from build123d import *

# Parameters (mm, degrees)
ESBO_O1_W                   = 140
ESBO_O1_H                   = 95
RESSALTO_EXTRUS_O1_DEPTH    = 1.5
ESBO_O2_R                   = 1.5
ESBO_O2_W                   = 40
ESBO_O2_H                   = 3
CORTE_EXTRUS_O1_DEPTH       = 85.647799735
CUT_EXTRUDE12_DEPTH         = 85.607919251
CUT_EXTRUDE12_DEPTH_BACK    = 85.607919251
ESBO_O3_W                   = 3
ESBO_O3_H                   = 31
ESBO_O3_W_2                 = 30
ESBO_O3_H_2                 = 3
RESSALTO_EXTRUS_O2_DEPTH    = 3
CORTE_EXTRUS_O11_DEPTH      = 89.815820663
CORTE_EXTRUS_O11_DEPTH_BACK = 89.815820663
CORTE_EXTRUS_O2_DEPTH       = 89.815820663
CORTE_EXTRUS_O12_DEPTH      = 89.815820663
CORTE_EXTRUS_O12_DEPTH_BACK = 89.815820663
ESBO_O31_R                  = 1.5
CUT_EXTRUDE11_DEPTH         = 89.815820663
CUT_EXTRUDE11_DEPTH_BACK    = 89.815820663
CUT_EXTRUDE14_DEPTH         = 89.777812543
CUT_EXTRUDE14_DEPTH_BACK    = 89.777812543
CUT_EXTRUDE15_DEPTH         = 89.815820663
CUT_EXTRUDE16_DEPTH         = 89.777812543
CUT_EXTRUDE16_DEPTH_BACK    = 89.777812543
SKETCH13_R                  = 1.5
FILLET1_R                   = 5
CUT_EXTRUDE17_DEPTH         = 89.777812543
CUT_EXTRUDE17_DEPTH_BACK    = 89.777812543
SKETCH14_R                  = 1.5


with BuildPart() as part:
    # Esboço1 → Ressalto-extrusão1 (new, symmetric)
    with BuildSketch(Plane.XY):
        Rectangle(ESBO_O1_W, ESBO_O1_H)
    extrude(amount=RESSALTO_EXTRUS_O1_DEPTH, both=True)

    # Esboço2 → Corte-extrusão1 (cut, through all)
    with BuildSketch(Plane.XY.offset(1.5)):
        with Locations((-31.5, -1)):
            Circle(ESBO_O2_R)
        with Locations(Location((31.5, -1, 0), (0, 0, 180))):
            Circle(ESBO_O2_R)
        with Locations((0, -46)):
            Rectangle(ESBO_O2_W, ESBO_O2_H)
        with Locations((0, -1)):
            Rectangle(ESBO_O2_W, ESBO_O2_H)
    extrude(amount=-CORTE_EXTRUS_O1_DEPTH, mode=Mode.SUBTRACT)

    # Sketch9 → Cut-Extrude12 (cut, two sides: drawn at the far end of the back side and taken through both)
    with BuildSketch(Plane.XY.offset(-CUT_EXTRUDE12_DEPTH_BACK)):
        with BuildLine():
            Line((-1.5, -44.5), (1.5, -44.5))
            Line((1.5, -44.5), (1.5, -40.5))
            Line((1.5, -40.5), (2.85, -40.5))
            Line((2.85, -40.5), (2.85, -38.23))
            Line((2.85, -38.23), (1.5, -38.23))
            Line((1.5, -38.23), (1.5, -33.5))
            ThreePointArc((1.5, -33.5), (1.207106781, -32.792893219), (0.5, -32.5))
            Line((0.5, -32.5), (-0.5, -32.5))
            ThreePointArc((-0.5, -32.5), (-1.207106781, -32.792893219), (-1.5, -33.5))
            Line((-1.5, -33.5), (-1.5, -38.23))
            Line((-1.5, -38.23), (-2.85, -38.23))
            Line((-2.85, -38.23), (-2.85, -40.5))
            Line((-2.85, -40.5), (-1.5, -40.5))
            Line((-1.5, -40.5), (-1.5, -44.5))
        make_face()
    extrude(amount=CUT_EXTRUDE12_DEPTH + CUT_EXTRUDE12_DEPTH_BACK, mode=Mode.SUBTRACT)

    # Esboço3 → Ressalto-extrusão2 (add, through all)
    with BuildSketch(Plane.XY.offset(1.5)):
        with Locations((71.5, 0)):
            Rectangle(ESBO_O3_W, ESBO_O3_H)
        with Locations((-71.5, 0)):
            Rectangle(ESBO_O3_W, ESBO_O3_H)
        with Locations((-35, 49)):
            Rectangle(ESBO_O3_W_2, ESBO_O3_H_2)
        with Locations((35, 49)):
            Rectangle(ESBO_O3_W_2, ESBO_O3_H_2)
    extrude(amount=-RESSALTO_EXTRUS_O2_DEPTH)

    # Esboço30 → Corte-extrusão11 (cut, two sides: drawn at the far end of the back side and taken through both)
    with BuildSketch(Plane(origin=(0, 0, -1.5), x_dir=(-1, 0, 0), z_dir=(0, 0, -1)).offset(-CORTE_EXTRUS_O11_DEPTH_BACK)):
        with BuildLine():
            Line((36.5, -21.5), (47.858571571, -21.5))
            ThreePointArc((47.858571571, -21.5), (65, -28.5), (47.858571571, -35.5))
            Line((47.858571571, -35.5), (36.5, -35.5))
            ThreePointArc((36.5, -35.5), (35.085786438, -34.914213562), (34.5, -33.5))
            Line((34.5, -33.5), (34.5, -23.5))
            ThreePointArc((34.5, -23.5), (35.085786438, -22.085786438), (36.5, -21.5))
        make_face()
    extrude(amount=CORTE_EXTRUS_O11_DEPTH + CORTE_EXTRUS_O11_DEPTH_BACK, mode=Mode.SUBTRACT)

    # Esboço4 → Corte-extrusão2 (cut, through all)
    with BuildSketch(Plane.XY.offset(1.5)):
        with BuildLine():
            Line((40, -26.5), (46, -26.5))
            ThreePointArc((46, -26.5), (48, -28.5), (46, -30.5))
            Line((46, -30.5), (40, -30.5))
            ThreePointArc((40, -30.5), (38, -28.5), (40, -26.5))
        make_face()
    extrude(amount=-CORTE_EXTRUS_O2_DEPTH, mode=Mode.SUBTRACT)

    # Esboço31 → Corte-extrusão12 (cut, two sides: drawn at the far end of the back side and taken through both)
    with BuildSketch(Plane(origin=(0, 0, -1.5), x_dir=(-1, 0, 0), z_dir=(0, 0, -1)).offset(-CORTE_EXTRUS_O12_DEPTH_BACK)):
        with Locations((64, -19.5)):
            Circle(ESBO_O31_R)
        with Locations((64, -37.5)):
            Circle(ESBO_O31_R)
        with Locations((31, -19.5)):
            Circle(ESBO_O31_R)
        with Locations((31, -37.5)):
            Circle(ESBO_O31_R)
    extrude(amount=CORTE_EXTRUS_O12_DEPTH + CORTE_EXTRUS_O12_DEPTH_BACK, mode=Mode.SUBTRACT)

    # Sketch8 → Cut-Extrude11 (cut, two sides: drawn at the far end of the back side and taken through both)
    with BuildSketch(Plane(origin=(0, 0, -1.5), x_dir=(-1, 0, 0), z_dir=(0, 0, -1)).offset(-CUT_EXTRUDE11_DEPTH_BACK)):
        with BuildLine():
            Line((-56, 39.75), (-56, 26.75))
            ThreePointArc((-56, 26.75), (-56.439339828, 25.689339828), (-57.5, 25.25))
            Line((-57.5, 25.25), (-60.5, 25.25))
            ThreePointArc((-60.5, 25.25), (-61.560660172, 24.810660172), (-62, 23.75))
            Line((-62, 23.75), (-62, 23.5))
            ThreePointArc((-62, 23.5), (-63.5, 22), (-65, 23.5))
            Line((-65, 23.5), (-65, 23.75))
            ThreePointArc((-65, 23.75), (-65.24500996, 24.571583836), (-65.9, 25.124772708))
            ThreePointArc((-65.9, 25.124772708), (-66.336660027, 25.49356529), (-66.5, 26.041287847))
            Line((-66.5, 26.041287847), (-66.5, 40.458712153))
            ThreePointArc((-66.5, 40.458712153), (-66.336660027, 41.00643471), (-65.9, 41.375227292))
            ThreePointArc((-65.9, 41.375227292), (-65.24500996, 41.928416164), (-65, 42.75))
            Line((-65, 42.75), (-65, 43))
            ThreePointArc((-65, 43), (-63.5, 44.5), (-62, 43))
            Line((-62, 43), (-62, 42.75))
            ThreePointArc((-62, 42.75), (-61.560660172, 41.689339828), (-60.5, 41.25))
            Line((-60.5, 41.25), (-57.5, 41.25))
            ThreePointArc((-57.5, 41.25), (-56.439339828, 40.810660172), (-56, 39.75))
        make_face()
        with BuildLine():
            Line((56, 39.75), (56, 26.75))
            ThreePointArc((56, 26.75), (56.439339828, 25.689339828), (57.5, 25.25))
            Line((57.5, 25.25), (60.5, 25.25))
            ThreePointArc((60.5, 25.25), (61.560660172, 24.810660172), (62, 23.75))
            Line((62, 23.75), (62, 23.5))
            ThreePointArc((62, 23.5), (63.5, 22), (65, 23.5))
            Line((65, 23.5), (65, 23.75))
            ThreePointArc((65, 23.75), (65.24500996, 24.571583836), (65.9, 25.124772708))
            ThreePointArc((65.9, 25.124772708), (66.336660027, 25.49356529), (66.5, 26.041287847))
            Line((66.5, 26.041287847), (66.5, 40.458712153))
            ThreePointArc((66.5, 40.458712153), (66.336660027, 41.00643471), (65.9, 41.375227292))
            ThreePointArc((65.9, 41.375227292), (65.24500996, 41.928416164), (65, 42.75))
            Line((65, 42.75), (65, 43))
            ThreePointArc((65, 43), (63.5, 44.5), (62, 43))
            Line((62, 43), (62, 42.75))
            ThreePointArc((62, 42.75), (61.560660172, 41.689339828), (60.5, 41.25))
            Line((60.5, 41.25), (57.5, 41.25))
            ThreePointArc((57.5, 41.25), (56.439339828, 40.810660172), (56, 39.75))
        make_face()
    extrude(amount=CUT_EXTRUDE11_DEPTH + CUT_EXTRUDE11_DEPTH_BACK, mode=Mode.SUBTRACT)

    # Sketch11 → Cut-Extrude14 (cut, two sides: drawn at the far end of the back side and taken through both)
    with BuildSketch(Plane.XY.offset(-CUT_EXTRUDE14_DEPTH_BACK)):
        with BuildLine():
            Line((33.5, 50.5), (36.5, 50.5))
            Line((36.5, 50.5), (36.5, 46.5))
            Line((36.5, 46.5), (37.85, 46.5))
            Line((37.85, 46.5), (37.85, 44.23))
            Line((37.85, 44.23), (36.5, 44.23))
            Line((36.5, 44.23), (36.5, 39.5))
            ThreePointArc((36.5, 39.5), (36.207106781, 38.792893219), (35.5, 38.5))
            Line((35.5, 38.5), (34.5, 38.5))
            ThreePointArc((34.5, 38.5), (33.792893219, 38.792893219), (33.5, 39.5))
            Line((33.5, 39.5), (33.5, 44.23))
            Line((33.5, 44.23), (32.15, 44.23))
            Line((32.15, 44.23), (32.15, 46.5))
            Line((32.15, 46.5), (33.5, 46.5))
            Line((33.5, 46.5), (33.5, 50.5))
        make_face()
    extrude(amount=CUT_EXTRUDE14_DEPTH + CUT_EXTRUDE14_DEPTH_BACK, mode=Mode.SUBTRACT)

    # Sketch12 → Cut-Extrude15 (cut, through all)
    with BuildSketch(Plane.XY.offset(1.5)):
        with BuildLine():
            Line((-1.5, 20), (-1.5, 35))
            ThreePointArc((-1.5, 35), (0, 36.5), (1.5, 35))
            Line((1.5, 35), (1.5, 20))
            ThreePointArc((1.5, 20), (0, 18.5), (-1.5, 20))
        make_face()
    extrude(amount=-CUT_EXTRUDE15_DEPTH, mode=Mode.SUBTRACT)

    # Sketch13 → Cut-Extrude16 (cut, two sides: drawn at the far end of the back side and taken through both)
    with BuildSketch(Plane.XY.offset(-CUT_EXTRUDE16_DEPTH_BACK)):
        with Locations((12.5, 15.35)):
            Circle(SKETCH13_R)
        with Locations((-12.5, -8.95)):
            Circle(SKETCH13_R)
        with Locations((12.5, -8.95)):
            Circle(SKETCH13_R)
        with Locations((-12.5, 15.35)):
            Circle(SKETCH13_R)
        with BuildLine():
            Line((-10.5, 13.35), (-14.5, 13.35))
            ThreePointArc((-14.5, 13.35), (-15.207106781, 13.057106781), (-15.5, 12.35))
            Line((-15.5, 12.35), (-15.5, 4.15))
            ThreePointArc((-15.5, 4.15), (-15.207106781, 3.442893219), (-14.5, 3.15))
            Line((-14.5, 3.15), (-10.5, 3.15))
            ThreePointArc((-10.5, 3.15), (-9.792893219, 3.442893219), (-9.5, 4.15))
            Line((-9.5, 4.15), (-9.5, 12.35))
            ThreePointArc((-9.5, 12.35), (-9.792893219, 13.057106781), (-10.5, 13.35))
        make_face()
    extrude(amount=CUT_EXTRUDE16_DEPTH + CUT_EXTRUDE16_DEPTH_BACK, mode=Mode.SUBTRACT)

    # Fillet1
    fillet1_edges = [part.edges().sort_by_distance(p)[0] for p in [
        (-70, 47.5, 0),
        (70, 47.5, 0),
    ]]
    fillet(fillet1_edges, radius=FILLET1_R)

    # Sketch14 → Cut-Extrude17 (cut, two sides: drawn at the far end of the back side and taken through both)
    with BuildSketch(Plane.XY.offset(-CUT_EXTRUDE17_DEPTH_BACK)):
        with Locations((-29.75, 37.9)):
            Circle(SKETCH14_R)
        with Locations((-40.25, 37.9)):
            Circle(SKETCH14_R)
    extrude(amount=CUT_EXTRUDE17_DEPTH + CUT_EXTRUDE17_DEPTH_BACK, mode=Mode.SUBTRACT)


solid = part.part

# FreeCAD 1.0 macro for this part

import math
import FreeCAD as App
import Part
import Sketcher

V = App.Vector
Q = App.Units.Quantity


def edges_at(feature, points):
    """Names of the edges that pass closest to the given points."""
    edges = feature.Shape.Edges
    near = lambda p: min(range(len(edges)), key=lambda i: edges[i].distToShape(Part.Vertex(*p))[0])
    return sorted({f"Edge{near(p) + 1}" for p in points})


def add_polygon(sketch, points):
    """Adds a closed chain of lines whose ends are joined by coincident constraints."""
    first, n = sketch.GeometryCount, len(points)
    for a, b in zip(points, points[1:] + points[:1]):
        sketch.addGeometry(Part.LineSegment(App.Vector(*a, 0), App.Vector(*b, 0)), False)
    for i in range(n):
        sketch.addConstraint(Sketcher.Constraint("Coincident", first + i, 2, first + (i + 1) % n, 1))

doc = App.newDocument("Part")
body = doc.addObject("PartDesign::Body", "Body")

sketch1 = body.newObject("Sketcher::SketchObject", "Sketch")
sketch1.AttachmentSupport = (doc.getObject("XY_Plane"), [""])
sketch1.MapMode = "FlatFace"
add_polygon(sketch1, [(-70, 48), (-70, -48), (70, -48), (70, 48)])
sketch1.addConstraint(Sketcher.Constraint("Vertical", 0))
sketch1.addConstraint(Sketcher.Constraint("Horizontal", 1))
sketch1.addConstraint(Sketcher.Constraint("Vertical", 2))
sketch1.addConstraint(Sketcher.Constraint("Horizontal", 3))
sketch1.addConstraint(Sketcher.Constraint("Symmetric", 0, 2, 2, 2, -1, 1))
sketch1.addConstraint(Sketcher.Constraint("DistanceX", 1, 1, 1, 2, Q("140 mm")))
sketch1.addConstraint(Sketcher.Constraint("DistanceY", 0, 2, 0, 1, Q("95 mm")))
pad1 = body.newObject("PartDesign::Pad", "Pad")
pad1.Profile = sketch1
pad1.Length = 3
pad1.Midplane = True

sketch2 = body.newObject("Sketcher::SketchObject", "Sketch001")
sketch2.AttachmentSupport = (doc.getObject("XY_Plane"), [""])
sketch2.MapMode = "FlatFace"
sketch2.AttachmentOffset = App.Placement(V(0, 0, 1.5), App.Rotation())
sketch2.addGeometry(Part.Circle(V(-31.5, -1, 0), V(0, 0, 1), 1.5), False)
sketch2.addGeometry(Part.Circle(V(31.5, -1, 0), V(0, 0, 1), 1.5), False)
add_polygon(sketch2, [(-20, -44.5), (-20, -47.5), (20, -47.5), (20, -44.5)])
add_polygon(sketch2, [(-20, 0.5), (-20, -2.5), (20, -2.5), (20, 0.5)])
sketch2.addConstraint(Sketcher.Constraint("Vertical", 2))
sketch2.addConstraint(Sketcher.Constraint("Horizontal", 3))
sketch2.addConstraint(Sketcher.Constraint("Vertical", 4))
sketch2.addConstraint(Sketcher.Constraint("Horizontal", 5))
sketch2.addConstraint(Sketcher.Constraint("Vertical", 6))
sketch2.addConstraint(Sketcher.Constraint("Horizontal", 7))
sketch2.addConstraint(Sketcher.Constraint("Vertical", 8))
sketch2.addConstraint(Sketcher.Constraint("Horizontal", 9))
sketch2.addConstraint(Sketcher.Constraint("Equal", 0, 1))
sketch2.addConstraint(Sketcher.Constraint("Symmetric", 0, 3, 1, 3, -2))
sketch2.addConstraint(Sketcher.Constraint("Vertical", 5, 2, 6, 2))
sketch2.addConstraint(Sketcher.Constraint("Vertical", 4, 2, 7, 2))
sketch2.addConstraint(Sketcher.Constraint("Equal", 4, 6))
sketch2.addConstraint(Sketcher.Constraint("Diameter", 0, Q("3 mm")))
sketch2.addConstraint(Sketcher.Constraint("DistanceX", 3, 1, 3, 2, Q("40 mm")))
sketch2.addConstraint(Sketcher.Constraint("DistanceY", 2, 2, 2, 1, Q("3 mm")))
sketch2.addConstraint(Sketcher.Constraint("DistanceY", 0, 3, -1, 1, Q("1 mm")))
sketch2.addConstraint(Sketcher.Constraint("DistanceX", 2, 2, -1, 1, Q("20 mm")))
sketch2.addConstraint(Sketcher.Constraint("DistanceX", 0, 3, 1, 3, Q("63 mm")))
sketch2.addConstraint(Sketcher.Constraint("DistanceY", 5, 2, 6, 2, Q("42 mm")))
sketch2.addConstraint(Sketcher.Constraint("DistanceY", 2, 2, -1, 1, Q("47.5 mm")))
pocket1 = body.newObject("PartDesign::Pocket", "Pocket")
pocket1.Profile = sketch2
pocket1.Type = "ThroughAll"

sketch3 = body.newObject("Sketcher::SketchObject", "Sketch002")
sketch3.AttachmentSupport = (doc.getObject("XY_Plane"), [""])
sketch3.MapMode = "FlatFace"
sketch3.addGeometry(Part.LineSegment(V(-1.5, -44.5, 0), V(1.5, -44.5, 0)), False)
sketch3.addGeometry(Part.LineSegment(V(1.5, -44.5, 0), V(1.5, -40.5, 0)), False)
sketch3.addGeometry(Part.LineSegment(V(1.5, -40.5, 0), V(2.9, -40.5, 0)), False)
sketch3.addGeometry(Part.LineSegment(V(2.9, -40.5, 0), V(2.9, -38.2, 0)), False)
sketch3.addGeometry(Part.LineSegment(V(2.9, -38.2, 0), V(1.5, -38.2, 0)), False)
sketch3.addGeometry(Part.LineSegment(V(1.5, -38.2, 0), V(1.5, -33.5, 0)), False)
sketch3.addGeometry(Part.ArcOfCircle(Part.Circle(V(0.5, -33.5, 0), V(0, 0, 1), 1), math.radians(0), math.radians(90)), False)
sketch3.addGeometry(Part.LineSegment(V(0.5, -32.5, 0), V(-0.5, -32.5, 0)), False)
sketch3.addGeometry(Part.ArcOfCircle(Part.Circle(V(-0.5, -33.5, 0), V(0, 0, 1), 1), math.radians(90), math.radians(180)), False)
sketch3.addGeometry(Part.LineSegment(V(-1.5, -33.5, 0), V(-1.5, -38.2, 0)), False)
sketch3.addGeometry(Part.LineSegment(V(-1.5, -38.2, 0), V(-2.9, -38.2, 0)), False)
sketch3.addGeometry(Part.LineSegment(V(-2.9, -38.2, 0), V(-2.9, -40.5, 0)), False)
sketch3.addGeometry(Part.LineSegment(V(-2.9, -40.5, 0), V(-1.5, -40.5, 0)), False)
sketch3.addGeometry(Part.LineSegment(V(-1.5, -40.5, 0), V(-1.5, -44.5, 0)), False)
sketch3.addConstraint(Sketcher.Constraint("Coincident", 0, 2, 1, 1))
sketch3.addConstraint(Sketcher.Constraint("Coincident", 1, 2, 2, 1))
sketch3.addConstraint(Sketcher.Constraint("Coincident", 2, 2, 3, 1))
sketch3.addConstraint(Sketcher.Constraint("Coincident", 3, 2, 4, 1))
sketch3.addConstraint(Sketcher.Constraint("Coincident", 4, 2, 5, 1))
sketch3.addConstraint(Sketcher.Constraint("Tangent", 5, 2, 6, 1))
sketch3.addConstraint(Sketcher.Constraint("Tangent", 6, 2, 7, 1))
sketch3.addConstraint(Sketcher.Constraint("Tangent", 7, 2, 8, 1))
sketch3.addConstraint(Sketcher.Constraint("Tangent", 8, 2, 9, 1))
sketch3.addConstraint(Sketcher.Constraint("Coincident", 9, 2, 10, 1))
sketch3.addConstraint(Sketcher.Constraint("Coincident", 10, 2, 11, 1))
sketch3.addConstraint(Sketcher.Constraint("Coincident", 11, 2, 12, 1))
sketch3.addConstraint(Sketcher.Constraint("Coincident", 12, 2, 13, 1))
sketch3.addConstraint(Sketcher.Constraint("Coincident", 13, 2, 0, 1))
sketch3.addConstraint(Sketcher.Constraint("Horizontal", 0))
sketch3.addConstraint(Sketcher.Constraint("Vertical", 1))
sketch3.addConstraint(Sketcher.Constraint("Horizontal", 2))
sketch3.addConstraint(Sketcher.Constraint("Vertical", 3))
sketch3.addConstraint(Sketcher.Constraint("Horizontal", 4))
sketch3.addConstraint(Sketcher.Constraint("Vertical", 5))
sketch3.addConstraint(Sketcher.Constraint("Horizontal", 7))
sketch3.addConstraint(Sketcher.Constraint("Vertical", 9))
sketch3.addConstraint(Sketcher.Constraint("Horizontal", 10))
sketch3.addConstraint(Sketcher.Constraint("Vertical", 11))
sketch3.addConstraint(Sketcher.Constraint("Horizontal", 12))
sketch3.addConstraint(Sketcher.Constraint("Vertical", 13))
sketch3.addConstraint(Sketcher.Constraint("Equal", 6, 8))
sketch3.addConstraint(Sketcher.Constraint("Symmetric", 4, 2, 9, 2, -2))
sketch3.addConstraint(Sketcher.Constraint("Symmetric", 2, 2, 11, 2, -2))
sketch3.addConstraint(Sketcher.Constraint("Vertical", 1, 2, 4, 2))
sketch3.addConstraint(Sketcher.Constraint("Vertical", 9, 2, 12, 2))
sketch3.addConstraint(Sketcher.Constraint("Radius", 6, Q("1 mm")))
sketch3.addConstraint(Sketcher.Constraint("DistanceX", 0, 1, 0, 2, Q("3 mm")))
sketch3.addConstraint(Sketcher.Constraint("DistanceY", 1, 1, 1, 2, Q("4 mm")))
sketch3.addConstraint(Sketcher.Constraint("DistanceY", 0, 2, 6, 3, Q("11 mm")))
sketch3.addConstraint(Sketcher.Constraint("DistanceX", 2, 1, 2, 2, Q("1.35 mm")))
sketch3.addConstraint(Sketcher.Constraint("DistanceY", 3, 1, 3, 2, Q("2.27 mm")))
sketch3.addConstraint(Sketcher.Constraint("DistanceY", 6, 3, -1, 1, Q("33.5 mm")))
pocket2 = body.newObject("PartDesign::Pocket", "Pocket001")
pocket2.Profile = sketch3
pocket2.Type = "ThroughAll"
pocket2.Midplane = True

sketch4 = body.newObject("Sketcher::SketchObject", "Sketch003")
sketch4.AttachmentSupport = (doc.getObject("XY_Plane"), [""])
sketch4.MapMode = "FlatFace"
sketch4.AttachmentOffset = App.Placement(V(0, 0, 1.5), App.Rotation())
add_polygon(sketch4, [(70, 15.5), (70, -15.5), (73, -15.5), (73, 15.5)])
add_polygon(sketch4, [(-73, 15.5), (-73, -15.5), (-70, -15.5), (-70, 15.5)])
add_polygon(sketch4, [(-50, 50.5), (-50, 47.5), (-20, 47.5), (-20, 50.5)])
add_polygon(sketch4, [(20, 50.5), (20, 47.5), (50, 47.5), (50, 50.5)])
sketch4.addConstraint(Sketcher.Constraint("Vertical", 0))
sketch4.addConstraint(Sketcher.Constraint("Horizontal", 1))
sketch4.addConstraint(Sketcher.Constraint("Vertical", 2))
sketch4.addConstraint(Sketcher.Constraint("Horizontal", 3))
sketch4.addConstraint(Sketcher.Constraint("Vertical", 4))
sketch4.addConstraint(Sketcher.Constraint("Horizontal", 5))
sketch4.addConstraint(Sketcher.Constraint("Vertical", 6))
sketch4.addConstraint(Sketcher.Constraint("Horizontal", 7))
sketch4.addConstraint(Sketcher.Constraint("Vertical", 8))
sketch4.addConstraint(Sketcher.Constraint("Horizontal", 9))
sketch4.addConstraint(Sketcher.Constraint("Vertical", 10))
sketch4.addConstraint(Sketcher.Constraint("Horizontal", 11))
sketch4.addConstraint(Sketcher.Constraint("Vertical", 12))
sketch4.addConstraint(Sketcher.Constraint("Horizontal", 13))
sketch4.addConstraint(Sketcher.Constraint("Vertical", 14))
sketch4.addConstraint(Sketcher.Constraint("Horizontal", 15))
sketch4.addConstraint(Sketcher.Constraint("Symmetric", 2, 2, 4, 2, -1, 1))
sketch4.addConstraint(Sketcher.Constraint("Symmetric", 0, 2, 6, 2, -1, 1))
sketch4.addConstraint(Sketcher.Constraint("Symmetric", 9, 2, 12, 2, -2))
sketch4.addConstraint(Sketcher.Constraint("Symmetric", 11, 2, 14, 2, -2))
sketch4.addConstraint(Sketcher.Constraint("Horizontal", 1, 2, 4, 2))
sketch4.addConstraint(Sketcher.Constraint("Equal", 7, 8))
sketch4.addConstraint(Sketcher.Constraint("DistanceX", 1, 1, 1, 2, Q("3 mm")))
sketch4.addConstraint(Sketcher.Constraint("DistanceX", 9, 1, 9, 2, Q("30 mm")))
sketch4.addConstraint(Sketcher.Constraint("DistanceY", 0, 2, 0, 1, Q("31 mm")))
sketch4.addConstraint(Sketcher.Constraint("DistanceX", -1, 1, 0, 2, Q("70 mm")))
sketch4.addConstraint(Sketcher.Constraint("DistanceX", 8, 2, -1, 1, Q("50 mm")))
sketch4.addConstraint(Sketcher.Constraint("DistanceY", 6, 2, 8, 2, Q("32 mm")))
pad2 = body.newObject("PartDesign::Pad", "Pad001")
pad2.Profile = sketch4
pad2.Type = "UpToLast"
pad2.Reversed = True

sketch5 = body.newObject("Sketcher::SketchObject", "Sketch004")
sketch5.AttachmentSupport = (doc.getObject("XY_Plane"), [""])
sketch5.MapMode = "FlatFace"
sketch5.AttachmentOffset = App.Placement(V(0, 0, -1.5), App.Rotation())
sketch5.addGeometry(Part.LineSegment(V(-47.9, -21.5, 0), V(-36.5, -21.5, 0)), False)
sketch5.addGeometry(Part.ArcOfCircle(Part.Circle(V(-36.5, -23.5, 0), V(0, 0, 1), 2), math.radians(0), math.radians(90)), False)
sketch5.addGeometry(Part.LineSegment(V(-34.5, -23.5, 0), V(-34.5, -33.5, 0)), False)
sketch5.addGeometry(Part.ArcOfCircle(Part.Circle(V(-36.5, -33.5, 0), V(0, 0, 1), 2), math.radians(-90), math.radians(0)), False)
sketch5.addGeometry(Part.LineSegment(V(-36.5, -35.5, 0), V(-47.9, -35.5, 0)), False)
sketch5.addGeometry(Part.ArcOfCircle(Part.Circle(V(-55, -28.5, 0), V(0, 0, 1), 10), math.radians(44), math.radians(316)), False)
sketch5.addConstraint(Sketcher.Constraint("Tangent", 0, 2, 1, 2))
sketch5.addConstraint(Sketcher.Constraint("Tangent", 1, 1, 2, 1))
sketch5.addConstraint(Sketcher.Constraint("Tangent", 2, 2, 3, 2))
sketch5.addConstraint(Sketcher.Constraint("Tangent", 3, 1, 4, 1))
sketch5.addConstraint(Sketcher.Constraint("Coincident", 4, 2, 5, 2))
sketch5.addConstraint(Sketcher.Constraint("Coincident", 5, 1, 0, 1))
sketch5.addConstraint(Sketcher.Constraint("Horizontal", 0))
sketch5.addConstraint(Sketcher.Constraint("Vertical", 2))
sketch5.addConstraint(Sketcher.Constraint("Horizontal", 4))
sketch5.addConstraint(Sketcher.Constraint("Equal", 1, 3))
sketch5.addConstraint(Sketcher.Constraint("Vertical", 4, 2, 5, 1))
sketch5.addConstraint(Sketcher.Constraint("Radius", 1, Q("2 mm")))
sketch5.addConstraint(Sketcher.Constraint("Radius", 5, Q("10 mm")))
sketch5.addConstraint(Sketcher.Constraint("DistanceY", 2, 2, 2, 1, Q("10 mm")))
sketch5.addConstraint(Sketcher.Constraint("DistanceX", 5, 3, -1, 1, Q("55 mm")))
sketch5.addConstraint(Sketcher.Constraint("DistanceX", 1, 3, -1, 1, Q("36.5 mm")))
sketch5.addConstraint(Sketcher.Constraint("DistanceY", 1, 3, -1, 1, Q("23.5 mm")))
pocket3 = body.newObject("PartDesign::Pocket", "Pocket002")
pocket3.Profile = sketch5
pocket3.Type = "ThroughAll"
pocket3.Midplane = True

sketch6 = body.newObject("Sketcher::SketchObject", "Sketch005")
sketch6.AttachmentSupport = (doc.getObject("XY_Plane"), [""])
sketch6.MapMode = "FlatFace"
sketch6.AttachmentOffset = App.Placement(V(0, 0, 1.5), App.Rotation())
sketch6.addGeometry(Part.LineSegment(V(46, -26.5, 0), V(40, -26.5, 0)), False)
sketch6.addGeometry(Part.ArcOfCircle(Part.Circle(V(40, -28.5, 0), V(0, 0, 1), 2), math.radians(90), math.radians(270)), False)
sketch6.addGeometry(Part.LineSegment(V(40, -30.5, 0), V(46, -30.5, 0)), False)
sketch6.addGeometry(Part.ArcOfCircle(Part.Circle(V(46, -28.5, 0), V(0, 0, 1), 2), math.radians(-90), math.radians(90)), False)
sketch6.addConstraint(Sketcher.Constraint("Tangent", 0, 2, 1, 1))
sketch6.addConstraint(Sketcher.Constraint("Tangent", 1, 2, 2, 1))
sketch6.addConstraint(Sketcher.Constraint("Tangent", 2, 2, 3, 1))
sketch6.addConstraint(Sketcher.Constraint("Tangent", 3, 2, 0, 1))
sketch6.addConstraint(Sketcher.Constraint("Horizontal", 0))
sketch6.addConstraint(Sketcher.Constraint("Horizontal", 2))
sketch6.addConstraint(Sketcher.Constraint("Radius", 1, Q("2 mm")))
sketch6.addConstraint(Sketcher.Constraint("DistanceX", 0, 2, 0, 1, Q("6 mm")))
sketch6.addConstraint(Sketcher.Constraint("DistanceX", -1, 1, 1, 3, Q("40 mm")))
sketch6.addConstraint(Sketcher.Constraint("DistanceY", 1, 3, -1, 1, Q("28.5 mm")))
pocket4 = body.newObject("PartDesign::Pocket", "Pocket003")
pocket4.Profile = sketch6
pocket4.Type = "ThroughAll"

sketch7 = body.newObject("Sketcher::SketchObject", "Sketch006")
sketch7.AttachmentSupport = (doc.getObject("XY_Plane"), [""])
sketch7.MapMode = "FlatFace"
sketch7.AttachmentOffset = App.Placement(V(0, 0, -1.5), App.Rotation())
sketch7.addGeometry(Part.Circle(V(-64, -19.5, 0), V(0, 0, 1), 1.5), False)
sketch7.addGeometry(Part.Circle(V(-64, -37.5, 0), V(0, 0, 1), 1.5), False)
sketch7.addGeometry(Part.Circle(V(-31, -19.5, 0), V(0, 0, 1), 1.5), False)
sketch7.addGeometry(Part.Circle(V(-31, -37.5, 0), V(0, 0, 1), 1.5), False)
sketch7.addConstraint(Sketcher.Constraint("Equal", 0, 1))
sketch7.addConstraint(Sketcher.Constraint("Equal", 1, 2))
sketch7.addConstraint(Sketcher.Constraint("Equal", 2, 3))
sketch7.addConstraint(Sketcher.Constraint("Horizontal", 0, 3, 2, 3))
sketch7.addConstraint(Sketcher.Constraint("Horizontal", 1, 3, 3, 3))
sketch7.addConstraint(Sketcher.Constraint("Vertical", 0, 3, 1, 3))
sketch7.addConstraint(Sketcher.Constraint("Vertical", 2, 3, 3, 3))
sketch7.addConstraint(Sketcher.Constraint("Diameter", 0, Q("3 mm")))
sketch7.addConstraint(Sketcher.Constraint("DistanceX", 0, 3, -1, 1, Q("64 mm")))
sketch7.addConstraint(Sketcher.Constraint("DistanceX", 2, 3, -1, 1, Q("31 mm")))
sketch7.addConstraint(Sketcher.Constraint("DistanceY", 1, 3, 0, 3, Q("18 mm")))
sketch7.addConstraint(Sketcher.Constraint("DistanceY", 0, 3, -1, 1, Q("19.5 mm")))
pocket5 = body.newObject("PartDesign::Pocket", "Pocket004")
pocket5.Profile = sketch7
pocket5.Type = "ThroughAll"
pocket5.Midplane = True

sketch8 = body.newObject("Sketcher::SketchObject", "Sketch007")
sketch8.AttachmentSupport = (doc.getObject("XY_Plane"), [""])
sketch8.MapMode = "FlatFace"
sketch8.AttachmentOffset = App.Placement(V(0, 0, -1.5), App.Rotation())
sketch8.addGeometry(Part.LineSegment(V(56, 26.75, 0), V(56, 39.75, 0)), False)
sketch8.addGeometry(Part.ArcOfCircle(Part.Circle(V(57.5, 39.75, 0), V(0, 0, 1), 1.5), math.radians(90), math.radians(180)), False)
sketch8.addGeometry(Part.LineSegment(V(57.5, 41.25, 0), V(60.5, 41.25, 0)), False)
sketch8.addGeometry(Part.ArcOfCircle(Part.Circle(V(60.5, 42.75, 0), V(0, 0, 1), 1.5), math.radians(-90), math.radians(0)), False)
sketch8.addGeometry(Part.LineSegment(V(62, 42.75, 0), V(62, 43, 0)), False)
sketch8.addGeometry(Part.ArcOfCircle(Part.Circle(V(63.5, 43, 0), V(0, 0, 1), 1.5), math.radians(0), math.radians(180)), False)
sketch8.addGeometry(Part.LineSegment(V(65, 43, 0), V(65, 42.75, 0)), False)
sketch8.addGeometry(Part.ArcOfCircle(Part.Circle(V(66.5, 42.75, 0), V(0, 0, 1), 1.5), math.radians(180), math.radians(246)), False)
sketch8.addGeometry(Part.ArcOfCircle(Part.Circle(V(65.5, 40.46, 0), V(0, 0, 1), 1), math.radians(0), math.radians(66)), False)
sketch8.addGeometry(Part.LineSegment(V(66.5, 40.46, 0), V(66.5, 26.04, 0)), False)
sketch8.addGeometry(Part.ArcOfCircle(Part.Circle(V(65.5, 26.04, 0), V(0, 0, 1), 1), math.radians(-66), math.radians(0)), False)
sketch8.addGeometry(Part.ArcOfCircle(Part.Circle(V(66.5, 23.75, 0), V(0, 0, 1), 1.5), math.radians(114), math.radians(180)), False)
sketch8.addGeometry(Part.LineSegment(V(65, 23.75, 0), V(65, 23.5, 0)), False)
sketch8.addGeometry(Part.ArcOfCircle(Part.Circle(V(63.5, 23.5, 0), V(0, 0, 1), 1.5), math.radians(180), math.radians(360)), False)
sketch8.addGeometry(Part.LineSegment(V(62, 23.5, 0), V(62, 23.75, 0)), False)
sketch8.addGeometry(Part.ArcOfCircle(Part.Circle(V(60.5, 23.75, 0), V(0, 0, 1), 1.5), math.radians(0), math.radians(90)), False)
sketch8.addGeometry(Part.LineSegment(V(60.5, 25.25, 0), V(57.5, 25.25, 0)), False)
sketch8.addGeometry(Part.ArcOfCircle(Part.Circle(V(57.5, 26.75, 0), V(0, 0, 1), 1.5), math.radians(180), math.radians(270)), False)
sketch8.addGeometry(Part.LineSegment(V(-56, 39.75, 0), V(-56, 26.75, 0)), False)
sketch8.addGeometry(Part.ArcOfCircle(Part.Circle(V(-57.5, 26.75, 0), V(0, 0, 1), 1.5), math.radians(-90), math.radians(0)), False)
sketch8.addGeometry(Part.LineSegment(V(-57.5, 25.25, 0), V(-60.5, 25.25, 0)), False)
sketch8.addGeometry(Part.ArcOfCircle(Part.Circle(V(-60.5, 23.75, 0), V(0, 0, 1), 1.5), math.radians(90), math.radians(180)), False)
sketch8.addGeometry(Part.LineSegment(V(-62, 23.75, 0), V(-62, 23.5, 0)), False)
sketch8.addGeometry(Part.ArcOfCircle(Part.Circle(V(-63.5, 23.5, 0), V(0, 0, 1), 1.5), math.radians(180), math.radians(360)), False)
sketch8.addGeometry(Part.LineSegment(V(-65, 23.5, 0), V(-65, 23.75, 0)), False)
sketch8.addGeometry(Part.ArcOfCircle(Part.Circle(V(-66.5, 23.75, 0), V(0, 0, 1), 1.5), math.radians(0), math.radians(66)), False)
sketch8.addGeometry(Part.ArcOfCircle(Part.Circle(V(-65.5, 26.04, 0), V(0, 0, 1), 1), math.radians(180), math.radians(246)), False)
sketch8.addGeometry(Part.LineSegment(V(-66.5, 26.04, 0), V(-66.5, 40.46, 0)), False)
sketch8.addGeometry(Part.ArcOfCircle(Part.Circle(V(-65.5, 40.46, 0), V(0, 0, 1), 1), math.radians(114), math.radians(180)), False)
sketch8.addGeometry(Part.ArcOfCircle(Part.Circle(V(-66.5, 42.75, 0), V(0, 0, 1), 1.5), math.radians(-66), math.radians(0)), False)
sketch8.addGeometry(Part.LineSegment(V(-65, 42.75, 0), V(-65, 43, 0)), False)
sketch8.addGeometry(Part.ArcOfCircle(Part.Circle(V(-63.5, 43, 0), V(0, 0, 1), 1.5), math.radians(0), math.radians(180)), False)
sketch8.addGeometry(Part.LineSegment(V(-62, 43, 0), V(-62, 42.75, 0)), False)
sketch8.addGeometry(Part.ArcOfCircle(Part.Circle(V(-60.5, 42.75, 0), V(0, 0, 1), 1.5), math.radians(180), math.radians(270)), False)
sketch8.addGeometry(Part.LineSegment(V(-60.5, 41.25, 0), V(-57.5, 41.25, 0)), False)
sketch8.addGeometry(Part.ArcOfCircle(Part.Circle(V(-57.5, 39.75, 0), V(0, 0, 1), 1.5), math.radians(0), math.radians(90)), False)
sketch8.addConstraint(Sketcher.Constraint("Tangent", 0, 2, 1, 2))
sketch8.addConstraint(Sketcher.Constraint("Tangent", 1, 1, 2, 1))
sketch8.addConstraint(Sketcher.Constraint("Tangent", 2, 2, 3, 1))
sketch8.addConstraint(Sketcher.Constraint("Tangent", 3, 2, 4, 1))
sketch8.addConstraint(Sketcher.Constraint("Tangent", 4, 2, 5, 2))
sketch8.addConstraint(Sketcher.Constraint("Tangent", 5, 1, 6, 1))
sketch8.addConstraint(Sketcher.Constraint("Tangent", 6, 2, 7, 1))
sketch8.addConstraint(Sketcher.Constraint("Tangent", 7, 2, 8, 2))
sketch8.addConstraint(Sketcher.Constraint("Tangent", 8, 1, 9, 1))
sketch8.addConstraint(Sketcher.Constraint("Tangent", 9, 2, 10, 2))
sketch8.addConstraint(Sketcher.Constraint("Tangent", 10, 1, 11, 1))
sketch8.addConstraint(Sketcher.Constraint("Tangent", 11, 2, 12, 1))
sketch8.addConstraint(Sketcher.Constraint("Tangent", 12, 2, 13, 2))
sketch8.addConstraint(Sketcher.Constraint("Tangent", 13, 1, 14, 1))
sketch8.addConstraint(Sketcher.Constraint("Tangent", 14, 2, 15, 1))
sketch8.addConstraint(Sketcher.Constraint("Tangent", 15, 2, 16, 1))
sketch8.addConstraint(Sketcher.Constraint("Tangent", 16, 2, 17, 2))
sketch8.addConstraint(Sketcher.Constraint("Tangent", 17, 1, 0, 1))
sketch8.addConstraint(Sketcher.Constraint("Tangent", 18, 2, 19, 2))
sketch8.addConstraint(Sketcher.Constraint("Tangent", 19, 1, 20, 1))
sketch8.addConstraint(Sketcher.Constraint("Tangent", 20, 2, 21, 1))
sketch8.addConstraint(Sketcher.Constraint("Tangent", 21, 2, 22, 1))
sketch8.addConstraint(Sketcher.Constraint("Tangent", 22, 2, 23, 2))
sketch8.addConstraint(Sketcher.Constraint("Tangent", 23, 1, 24, 1))
sketch8.addConstraint(Sketcher.Constraint("Tangent", 24, 2, 25, 1))
sketch8.addConstraint(Sketcher.Constraint("Tangent", 25, 2, 26, 2))
sketch8.addConstraint(Sketcher.Constraint("Tangent", 26, 1, 27, 1))
sketch8.addConstraint(Sketcher.Constraint("Tangent", 27, 2, 28, 2))
sketch8.addConstraint(Sketcher.Constraint("Tangent", 28, 1, 29, 1))
sketch8.addConstraint(Sketcher.Constraint("Tangent", 29, 2, 30, 1))
sketch8.addConstraint(Sketcher.Constraint("Tangent", 30, 2, 31, 2))
sketch8.addConstraint(Sketcher.Constraint("Tangent", 31, 1, 32, 1))
sketch8.addConstraint(Sketcher.Constraint("Tangent", 32, 2, 33, 1))
sketch8.addConstraint(Sketcher.Constraint("Tangent", 33, 2, 34, 1))
sketch8.addConstraint(Sketcher.Constraint("Tangent", 34, 2, 35, 2))
sketch8.addConstraint(Sketcher.Constraint("Tangent", 35, 1, 18, 1))
sketch8.addConstraint(Sketcher.Constraint("Vertical", 0))
sketch8.addConstraint(Sketcher.Constraint("Horizontal", 2))
sketch8.addConstraint(Sketcher.Constraint("Vertical", 4))
sketch8.addConstraint(Sketcher.Constraint("Vertical", 6))
sketch8.addConstraint(Sketcher.Constraint("Vertical", 9))
sketch8.addConstraint(Sketcher.Constraint("Vertical", 12))
sketch8.addConstraint(Sketcher.Constraint("Vertical", 14))
sketch8.addConstraint(Sketcher.Constraint("Horizontal", 16))
sketch8.addConstraint(Sketcher.Constraint("Vertical", 18))
sketch8.addConstraint(Sketcher.Constraint("Horizontal", 20))
sketch8.addConstraint(Sketcher.Constraint("Vertical", 22))
sketch8.addConstraint(Sketcher.Constraint("Vertical", 24))
sketch8.addConstraint(Sketcher.Constraint("Vertical", 27))
sketch8.addConstraint(Sketcher.Constraint("Vertical", 30))
sketch8.addConstraint(Sketcher.Constraint("Vertical", 32))
sketch8.addConstraint(Sketcher.Constraint("Horizontal", 34))
sketch8.addConstraint(Sketcher.Constraint("Equal", 1, 3))
sketch8.addConstraint(Sketcher.Constraint("Equal", 3, 5))
sketch8.addConstraint(Sketcher.Constraint("Equal", 5, 7))
sketch8.addConstraint(Sketcher.Constraint("Equal", 8, 10))
sketch8.addConstraint(Sketcher.Constraint("Equal", 7, 11))
sketch8.addConstraint(Sketcher.Constraint("Equal", 11, 13))
sketch8.addConstraint(Sketcher.Constraint("Equal", 13, 15))
sketch8.addConstraint(Sketcher.Constraint("Equal", 15, 17))
sketch8.addConstraint(Sketcher.Constraint("Equal", 17, 19))
sketch8.addConstraint(Sketcher.Constraint("Equal", 19, 21))
sketch8.addConstraint(Sketcher.Constraint("Equal", 21, 23))
sketch8.addConstraint(Sketcher.Constraint("Equal", 23, 25))
sketch8.addConstraint(Sketcher.Constraint("Equal", 10, 26))
sketch8.addConstraint(Sketcher.Constraint("Equal", 26, 28))
sketch8.addConstraint(Sketcher.Constraint("Equal", 25, 29))
sketch8.addConstraint(Sketcher.Constraint("Equal", 29, 31))
sketch8.addConstraint(Sketcher.Constraint("Equal", 31, 33))
sketch8.addConstraint(Sketcher.Constraint("Equal", 33, 35))
sketch8.addConstraint(Sketcher.Constraint("Symmetric", 17, 3, 19, 3, -2))
sketch8.addConstraint(Sketcher.Constraint("Symmetric", 13, 3, 23, 3, -2))
sketch8.addConstraint(Sketcher.Constraint("Symmetric", 10, 3, 26, 3, -2))
sketch8.addConstraint(Sketcher.Constraint("Symmetric", 7, 3, 29, 3, -2))
sketch8.addConstraint(Sketcher.Constraint("Horizontal", 3, 3, 7, 3))
sketch8.addConstraint(Sketcher.Constraint("Horizontal", 11, 3, 15, 3))
sketch8.addConstraint(Sketcher.Constraint("Horizontal", 5, 3, 31, 3))
sketch8.addConstraint(Sketcher.Constraint("Horizontal", 29, 3, 33, 3))
sketch8.addConstraint(Sketcher.Constraint("Vertical", 7, 3, 11, 3))
sketch8.addConstraint(Sketcher.Constraint("Vertical", 11, 3, 8, 1))
sketch8.addConstraint(Sketcher.Constraint("Equal", 6, 12))
sketch8.addConstraint(Sketcher.Constraint("Radius", 8, Q("1 mm")))
sketch8.addConstraint(Sketcher.Constraint("Radius", 1, Q("1.5 mm")))
sketch8.addConstraint(Sketcher.Constraint("DistanceX", 2, 1, 2, 2, Q("3 mm")))
sketch8.addConstraint(Sketcher.Constraint("DistanceY", 0, 1, 0, 2, Q("13 mm")))
sketch8.addConstraint(Sketcher.Constraint("DistanceY", -1, 1, 5, 3, Q("43 mm")))
sketch8.addConstraint(Sketcher.Constraint("DistanceX", -1, 1, 0, 2, Q("56 mm")))
sketch8.addConstraint(Sketcher.Constraint("DistanceY", 4, 1, 4, 2, Q("0.25 mm")))
pocket6 = body.newObject("PartDesign::Pocket", "Pocket005")
pocket6.Profile = sketch8
pocket6.Type = "ThroughAll"
pocket6.Midplane = True

sketch9 = body.newObject("Sketcher::SketchObject", "Sketch008")
sketch9.AttachmentSupport = (doc.getObject("XY_Plane"), [""])
sketch9.MapMode = "FlatFace"
sketch9.addGeometry(Part.LineSegment(V(36.5, 50.5, 0), V(33.5, 50.5, 0)), False)
sketch9.addGeometry(Part.LineSegment(V(33.5, 50.5, 0), V(33.5, 46.5, 0)), False)
sketch9.addGeometry(Part.LineSegment(V(33.5, 46.5, 0), V(32.1, 46.5, 0)), False)
sketch9.addGeometry(Part.LineSegment(V(32.1, 46.5, 0), V(32.1, 44.2, 0)), False)
sketch9.addGeometry(Part.LineSegment(V(32.1, 44.2, 0), V(33.5, 44.2, 0)), False)
sketch9.addGeometry(Part.LineSegment(V(33.5, 44.2, 0), V(33.5, 39.5, 0)), False)
sketch9.addGeometry(Part.ArcOfCircle(Part.Circle(V(34.5, 39.5, 0), V(0, 0, 1), 1), math.radians(-180), math.radians(-90)), False)
sketch9.addGeometry(Part.LineSegment(V(34.5, 38.5, 0), V(35.5, 38.5, 0)), False)
sketch9.addGeometry(Part.ArcOfCircle(Part.Circle(V(35.5, 39.5, 0), V(0, 0, 1), 1), math.radians(-90), math.radians(0)), False)
sketch9.addGeometry(Part.LineSegment(V(36.5, 39.5, 0), V(36.5, 44.2, 0)), False)
sketch9.addGeometry(Part.LineSegment(V(36.5, 44.2, 0), V(37.9, 44.2, 0)), False)
sketch9.addGeometry(Part.LineSegment(V(37.9, 44.2, 0), V(37.9, 46.5, 0)), False)
sketch9.addGeometry(Part.LineSegment(V(37.9, 46.5, 0), V(36.5, 46.5, 0)), False)
sketch9.addGeometry(Part.LineSegment(V(36.5, 46.5, 0), V(36.5, 50.5, 0)), False)
sketch9.addConstraint(Sketcher.Constraint("Coincident", 0, 2, 1, 1))
sketch9.addConstraint(Sketcher.Constraint("Coincident", 1, 2, 2, 1))
sketch9.addConstraint(Sketcher.Constraint("Coincident", 2, 2, 3, 1))
sketch9.addConstraint(Sketcher.Constraint("Coincident", 3, 2, 4, 1))
sketch9.addConstraint(Sketcher.Constraint("Coincident", 4, 2, 5, 1))
sketch9.addConstraint(Sketcher.Constraint("Tangent", 5, 2, 6, 1))
sketch9.addConstraint(Sketcher.Constraint("Tangent", 6, 2, 7, 1))
sketch9.addConstraint(Sketcher.Constraint("Tangent", 7, 2, 8, 1))
sketch9.addConstraint(Sketcher.Constraint("Tangent", 8, 2, 9, 1))
sketch9.addConstraint(Sketcher.Constraint("Coincident", 9, 2, 10, 1))
sketch9.addConstraint(Sketcher.Constraint("Coincident", 10, 2, 11, 1))
sketch9.addConstraint(Sketcher.Constraint("Coincident", 11, 2, 12, 1))
sketch9.addConstraint(Sketcher.Constraint("Coincident", 12, 2, 13, 1))
sketch9.addConstraint(Sketcher.Constraint("Coincident", 13, 2, 0, 1))
sketch9.addConstraint(Sketcher.Constraint("Horizontal", 0))
sketch9.addConstraint(Sketcher.Constraint("Vertical", 1))
sketch9.addConstraint(Sketcher.Constraint("Horizontal", 2))
sketch9.addConstraint(Sketcher.Constraint("Vertical", 3))
sketch9.addConstraint(Sketcher.Constraint("Horizontal", 4))
sketch9.addConstraint(Sketcher.Constraint("Vertical", 5))
sketch9.addConstraint(Sketcher.Constraint("Horizontal", 7))
sketch9.addConstraint(Sketcher.Constraint("Vertical", 9))
sketch9.addConstraint(Sketcher.Constraint("Horizontal", 10))
sketch9.addConstraint(Sketcher.Constraint("Vertical", 11))
sketch9.addConstraint(Sketcher.Constraint("Horizontal", 12))
sketch9.addConstraint(Sketcher.Constraint("Vertical", 13))
sketch9.addConstraint(Sketcher.Constraint("Equal", 6, 8))
sketch9.addConstraint(Sketcher.Constraint("Horizontal", 4, 2, 9, 2))
sketch9.addConstraint(Sketcher.Constraint("Horizontal", 2, 2, 11, 2))
sketch9.addConstraint(Sketcher.Constraint("Vertical", 1, 2, 4, 2))
sketch9.addConstraint(Sketcher.Constraint("Vertical", 9, 2, 12, 2))
sketch9.addConstraint(Sketcher.Constraint("Equal", 4, 10))
sketch9.addConstraint(Sketcher.Constraint("Radius", 6, Q("1 mm")))
sketch9.addConstraint(Sketcher.Constraint("DistanceX", 0, 2, 0, 1, Q("3 mm")))
sketch9.addConstraint(Sketcher.Constraint("DistanceY", 1, 2, 1, 1, Q("4 mm")))
sketch9.addConstraint(Sketcher.Constraint("DistanceY", 6, 3, 0, 2, Q("11 mm")))
sketch9.addConstraint(Sketcher.Constraint("DistanceX", 2, 2, 2, 1, Q("1.35 mm")))
sketch9.addConstraint(Sketcher.Constraint("DistanceY", 3, 2, 3, 1, Q("2.27 mm")))
sketch9.addConstraint(Sketcher.Constraint("DistanceX", -1, 1, 6, 3, Q("34.5 mm")))
sketch9.addConstraint(Sketcher.Constraint("DistanceY", -1, 1, 6, 3, Q("39.5 mm")))
pocket7 = body.newObject("PartDesign::Pocket", "Pocket006")
pocket7.Profile = sketch9
pocket7.Type = "ThroughAll"
pocket7.Midplane = True

sketch10 = body.newObject("Sketcher::SketchObject", "Sketch009")
sketch10.AttachmentSupport = (doc.getObject("XY_Plane"), [""])
sketch10.MapMode = "FlatFace"
sketch10.AttachmentOffset = App.Placement(V(0, 0, 1.5), App.Rotation())
sketch10.addGeometry(Part.LineSegment(V(-1.5, 35, 0), V(-1.5, 20, 0)), False)
sketch10.addGeometry(Part.ArcOfCircle(Part.Circle(V(0, 20, 0), V(0, 0, 1), 1.5), math.radians(180), math.radians(360)), False)
sketch10.addGeometry(Part.LineSegment(V(1.5, 20, 0), V(1.5, 35, 0)), False)
sketch10.addGeometry(Part.ArcOfCircle(Part.Circle(V(0, 35, 0), V(0, 0, 1), 1.5), math.radians(0), math.radians(180)), False)
sketch10.addConstraint(Sketcher.Constraint("Tangent", 0, 2, 1, 1))
sketch10.addConstraint(Sketcher.Constraint("Tangent", 1, 2, 2, 1))
sketch10.addConstraint(Sketcher.Constraint("Tangent", 2, 2, 3, 1))
sketch10.addConstraint(Sketcher.Constraint("Tangent", 3, 2, 0, 1))
sketch10.addConstraint(Sketcher.Constraint("Vertical", 0))
sketch10.addConstraint(Sketcher.Constraint("Vertical", 2))
sketch10.addConstraint(Sketcher.Constraint("PointOnObject", 1, 3, -2))
sketch10.addConstraint(Sketcher.Constraint("Radius", 1, Q("1.5 mm")))
sketch10.addConstraint(Sketcher.Constraint("DistanceY", 0, 2, 0, 1, Q("15 mm")))
sketch10.addConstraint(Sketcher.Constraint("DistanceY", -1, 1, 1, 3, Q("20 mm")))
pocket8 = body.newObject("PartDesign::Pocket", "Pocket007")
pocket8.Profile = sketch10
pocket8.Type = "ThroughAll"

sketch11 = body.newObject("Sketcher::SketchObject", "Sketch010")
sketch11.AttachmentSupport = (doc.getObject("XY_Plane"), [""])
sketch11.MapMode = "FlatFace"
sketch11.addGeometry(Part.Circle(V(12.5, 15.3, 0), V(0, 0, 1), 1.5), False)
sketch11.addGeometry(Part.Circle(V(-12.5, -8.9, 0), V(0, 0, 1), 1.5), False)
sketch11.addGeometry(Part.Circle(V(12.5, -8.9, 0), V(0, 0, 1), 1.5), False)
sketch11.addGeometry(Part.Circle(V(-12.5, 15.3, 0), V(0, 0, 1), 1.5), False)
sketch11.addGeometry(Part.LineSegment(V(-10.5, 13.3, 0), V(-14.5, 13.3, 0)), False)
sketch11.addGeometry(Part.ArcOfCircle(Part.Circle(V(-14.5, 12.3, 0), V(0, 0, 1), 1), math.radians(90), math.radians(180)), False)
sketch11.addGeometry(Part.LineSegment(V(-15.5, 12.3, 0), V(-15.5, 4.2, 0)), False)
sketch11.addGeometry(Part.ArcOfCircle(Part.Circle(V(-14.5, 4.2, 0), V(0, 0, 1), 1), math.radians(-180), math.radians(-90)), False)
sketch11.addGeometry(Part.LineSegment(V(-14.5, 3.1, 0), V(-10.5, 3.1, 0)), False)
sketch11.addGeometry(Part.ArcOfCircle(Part.Circle(V(-10.5, 4.2, 0), V(0, 0, 1), 1), math.radians(-90), math.radians(0)), False)
sketch11.addGeometry(Part.LineSegment(V(-9.5, 4.2, 0), V(-9.5, 12.3, 0)), False)
sketch11.addGeometry(Part.ArcOfCircle(Part.Circle(V(-10.5, 12.3, 0), V(0, 0, 1), 1), math.radians(0), math.radians(90)), False)
sketch11.addConstraint(Sketcher.Constraint("Tangent", 4, 2, 5, 1))
sketch11.addConstraint(Sketcher.Constraint("Tangent", 5, 2, 6, 1))
sketch11.addConstraint(Sketcher.Constraint("Tangent", 6, 2, 7, 1))
sketch11.addConstraint(Sketcher.Constraint("Tangent", 7, 2, 8, 1))
sketch11.addConstraint(Sketcher.Constraint("Tangent", 8, 2, 9, 1))
sketch11.addConstraint(Sketcher.Constraint("Tangent", 9, 2, 10, 1))
sketch11.addConstraint(Sketcher.Constraint("Tangent", 10, 2, 11, 1))
sketch11.addConstraint(Sketcher.Constraint("Tangent", 11, 2, 4, 1))
sketch11.addConstraint(Sketcher.Constraint("Horizontal", 4))
sketch11.addConstraint(Sketcher.Constraint("Vertical", 6))
sketch11.addConstraint(Sketcher.Constraint("Horizontal", 8))
sketch11.addConstraint(Sketcher.Constraint("Vertical", 10))
sketch11.addConstraint(Sketcher.Constraint("Equal", 0, 1))
sketch11.addConstraint(Sketcher.Constraint("Equal", 1, 2))
sketch11.addConstraint(Sketcher.Constraint("Equal", 2, 3))
sketch11.addConstraint(Sketcher.Constraint("Equal", 5, 7))
sketch11.addConstraint(Sketcher.Constraint("Equal", 7, 9))
sketch11.addConstraint(Sketcher.Constraint("Equal", 9, 11))
sketch11.addConstraint(Sketcher.Constraint("Symmetric", 1, 3, 2, 3, -2))
sketch11.addConstraint(Sketcher.Constraint("Symmetric", 0, 3, 3, 3, -2))
sketch11.addConstraint(Sketcher.Constraint("Vertical", 0, 3, 2, 3))
sketch11.addConstraint(Sketcher.Constraint("Diameter", 0, Q("3 mm")))
sketch11.addConstraint(Sketcher.Constraint("Radius", 5, Q("1 mm")))
sketch11.addConstraint(Sketcher.Constraint("DistanceX", 4, 2, 4, 1, Q("4 mm")))
sketch11.addConstraint(Sketcher.Constraint("DistanceY", 6, 2, 6, 1, Q("8.2 mm")))
sketch11.addConstraint(Sketcher.Constraint("DistanceX", 1, 3, 0, 3, Q("25 mm")))
sketch11.addConstraint(Sketcher.Constraint("DistanceX", 5, 3, 3, 3, Q("2 mm")))
sketch11.addConstraint(Sketcher.Constraint("DistanceY", 5, 3, 3, 3, Q("3 mm")))
sketch11.addConstraint(Sketcher.Constraint("DistanceY", 1, 3, 0, 3, Q("24.3 mm")))
sketch11.addConstraint(Sketcher.Constraint("DistanceY", -1, 1, 0, 3, Q("15.35 mm")))
pocket9 = body.newObject("PartDesign::Pocket", "Pocket008")
pocket9.Profile = sketch11
pocket9.Type = "ThroughAll"
pocket9.Midplane = True
doc.recompute()

fillet = body.newObject("PartDesign::Fillet", "Fillet")
fillet.Base = (pocket9, edges_at(pocket9, [(-70, 47.5, 0), (70, 47.5, 0)]))
fillet.Radius = 5

sketch12 = body.newObject("Sketcher::SketchObject", "Sketch011")
sketch12.AttachmentSupport = (doc.getObject("XY_Plane"), [""])
sketch12.MapMode = "FlatFace"
sketch12.addGeometry(Part.Circle(V(-29.8, 37.9, 0), V(0, 0, 1), 1.5), False)
sketch12.addGeometry(Part.Circle(V(-40.2, 37.9, 0), V(0, 0, 1), 1.5), False)
sketch12.addConstraint(Sketcher.Constraint("Equal", 0, 1))
sketch12.addConstraint(Sketcher.Constraint("Horizontal", 0, 3, 1, 3))
sketch12.addConstraint(Sketcher.Constraint("Diameter", 0, Q("3 mm")))
sketch12.addConstraint(Sketcher.Constraint("DistanceY", -1, 1, 0, 3, Q("37.9 mm")))
sketch12.addConstraint(Sketcher.Constraint("DistanceX", 1, 3, 0, 3, Q("10.5 mm")))
sketch12.addConstraint(Sketcher.Constraint("DistanceX", 0, 3, -1, 1, Q("29.75 mm")))
pocket10 = body.newObject("PartDesign::Pocket", "Pocket009")
pocket10.Profile = sketch12
pocket10.Type = "ThroughAll"
pocket10.Midplane = True

doc.recompute()
